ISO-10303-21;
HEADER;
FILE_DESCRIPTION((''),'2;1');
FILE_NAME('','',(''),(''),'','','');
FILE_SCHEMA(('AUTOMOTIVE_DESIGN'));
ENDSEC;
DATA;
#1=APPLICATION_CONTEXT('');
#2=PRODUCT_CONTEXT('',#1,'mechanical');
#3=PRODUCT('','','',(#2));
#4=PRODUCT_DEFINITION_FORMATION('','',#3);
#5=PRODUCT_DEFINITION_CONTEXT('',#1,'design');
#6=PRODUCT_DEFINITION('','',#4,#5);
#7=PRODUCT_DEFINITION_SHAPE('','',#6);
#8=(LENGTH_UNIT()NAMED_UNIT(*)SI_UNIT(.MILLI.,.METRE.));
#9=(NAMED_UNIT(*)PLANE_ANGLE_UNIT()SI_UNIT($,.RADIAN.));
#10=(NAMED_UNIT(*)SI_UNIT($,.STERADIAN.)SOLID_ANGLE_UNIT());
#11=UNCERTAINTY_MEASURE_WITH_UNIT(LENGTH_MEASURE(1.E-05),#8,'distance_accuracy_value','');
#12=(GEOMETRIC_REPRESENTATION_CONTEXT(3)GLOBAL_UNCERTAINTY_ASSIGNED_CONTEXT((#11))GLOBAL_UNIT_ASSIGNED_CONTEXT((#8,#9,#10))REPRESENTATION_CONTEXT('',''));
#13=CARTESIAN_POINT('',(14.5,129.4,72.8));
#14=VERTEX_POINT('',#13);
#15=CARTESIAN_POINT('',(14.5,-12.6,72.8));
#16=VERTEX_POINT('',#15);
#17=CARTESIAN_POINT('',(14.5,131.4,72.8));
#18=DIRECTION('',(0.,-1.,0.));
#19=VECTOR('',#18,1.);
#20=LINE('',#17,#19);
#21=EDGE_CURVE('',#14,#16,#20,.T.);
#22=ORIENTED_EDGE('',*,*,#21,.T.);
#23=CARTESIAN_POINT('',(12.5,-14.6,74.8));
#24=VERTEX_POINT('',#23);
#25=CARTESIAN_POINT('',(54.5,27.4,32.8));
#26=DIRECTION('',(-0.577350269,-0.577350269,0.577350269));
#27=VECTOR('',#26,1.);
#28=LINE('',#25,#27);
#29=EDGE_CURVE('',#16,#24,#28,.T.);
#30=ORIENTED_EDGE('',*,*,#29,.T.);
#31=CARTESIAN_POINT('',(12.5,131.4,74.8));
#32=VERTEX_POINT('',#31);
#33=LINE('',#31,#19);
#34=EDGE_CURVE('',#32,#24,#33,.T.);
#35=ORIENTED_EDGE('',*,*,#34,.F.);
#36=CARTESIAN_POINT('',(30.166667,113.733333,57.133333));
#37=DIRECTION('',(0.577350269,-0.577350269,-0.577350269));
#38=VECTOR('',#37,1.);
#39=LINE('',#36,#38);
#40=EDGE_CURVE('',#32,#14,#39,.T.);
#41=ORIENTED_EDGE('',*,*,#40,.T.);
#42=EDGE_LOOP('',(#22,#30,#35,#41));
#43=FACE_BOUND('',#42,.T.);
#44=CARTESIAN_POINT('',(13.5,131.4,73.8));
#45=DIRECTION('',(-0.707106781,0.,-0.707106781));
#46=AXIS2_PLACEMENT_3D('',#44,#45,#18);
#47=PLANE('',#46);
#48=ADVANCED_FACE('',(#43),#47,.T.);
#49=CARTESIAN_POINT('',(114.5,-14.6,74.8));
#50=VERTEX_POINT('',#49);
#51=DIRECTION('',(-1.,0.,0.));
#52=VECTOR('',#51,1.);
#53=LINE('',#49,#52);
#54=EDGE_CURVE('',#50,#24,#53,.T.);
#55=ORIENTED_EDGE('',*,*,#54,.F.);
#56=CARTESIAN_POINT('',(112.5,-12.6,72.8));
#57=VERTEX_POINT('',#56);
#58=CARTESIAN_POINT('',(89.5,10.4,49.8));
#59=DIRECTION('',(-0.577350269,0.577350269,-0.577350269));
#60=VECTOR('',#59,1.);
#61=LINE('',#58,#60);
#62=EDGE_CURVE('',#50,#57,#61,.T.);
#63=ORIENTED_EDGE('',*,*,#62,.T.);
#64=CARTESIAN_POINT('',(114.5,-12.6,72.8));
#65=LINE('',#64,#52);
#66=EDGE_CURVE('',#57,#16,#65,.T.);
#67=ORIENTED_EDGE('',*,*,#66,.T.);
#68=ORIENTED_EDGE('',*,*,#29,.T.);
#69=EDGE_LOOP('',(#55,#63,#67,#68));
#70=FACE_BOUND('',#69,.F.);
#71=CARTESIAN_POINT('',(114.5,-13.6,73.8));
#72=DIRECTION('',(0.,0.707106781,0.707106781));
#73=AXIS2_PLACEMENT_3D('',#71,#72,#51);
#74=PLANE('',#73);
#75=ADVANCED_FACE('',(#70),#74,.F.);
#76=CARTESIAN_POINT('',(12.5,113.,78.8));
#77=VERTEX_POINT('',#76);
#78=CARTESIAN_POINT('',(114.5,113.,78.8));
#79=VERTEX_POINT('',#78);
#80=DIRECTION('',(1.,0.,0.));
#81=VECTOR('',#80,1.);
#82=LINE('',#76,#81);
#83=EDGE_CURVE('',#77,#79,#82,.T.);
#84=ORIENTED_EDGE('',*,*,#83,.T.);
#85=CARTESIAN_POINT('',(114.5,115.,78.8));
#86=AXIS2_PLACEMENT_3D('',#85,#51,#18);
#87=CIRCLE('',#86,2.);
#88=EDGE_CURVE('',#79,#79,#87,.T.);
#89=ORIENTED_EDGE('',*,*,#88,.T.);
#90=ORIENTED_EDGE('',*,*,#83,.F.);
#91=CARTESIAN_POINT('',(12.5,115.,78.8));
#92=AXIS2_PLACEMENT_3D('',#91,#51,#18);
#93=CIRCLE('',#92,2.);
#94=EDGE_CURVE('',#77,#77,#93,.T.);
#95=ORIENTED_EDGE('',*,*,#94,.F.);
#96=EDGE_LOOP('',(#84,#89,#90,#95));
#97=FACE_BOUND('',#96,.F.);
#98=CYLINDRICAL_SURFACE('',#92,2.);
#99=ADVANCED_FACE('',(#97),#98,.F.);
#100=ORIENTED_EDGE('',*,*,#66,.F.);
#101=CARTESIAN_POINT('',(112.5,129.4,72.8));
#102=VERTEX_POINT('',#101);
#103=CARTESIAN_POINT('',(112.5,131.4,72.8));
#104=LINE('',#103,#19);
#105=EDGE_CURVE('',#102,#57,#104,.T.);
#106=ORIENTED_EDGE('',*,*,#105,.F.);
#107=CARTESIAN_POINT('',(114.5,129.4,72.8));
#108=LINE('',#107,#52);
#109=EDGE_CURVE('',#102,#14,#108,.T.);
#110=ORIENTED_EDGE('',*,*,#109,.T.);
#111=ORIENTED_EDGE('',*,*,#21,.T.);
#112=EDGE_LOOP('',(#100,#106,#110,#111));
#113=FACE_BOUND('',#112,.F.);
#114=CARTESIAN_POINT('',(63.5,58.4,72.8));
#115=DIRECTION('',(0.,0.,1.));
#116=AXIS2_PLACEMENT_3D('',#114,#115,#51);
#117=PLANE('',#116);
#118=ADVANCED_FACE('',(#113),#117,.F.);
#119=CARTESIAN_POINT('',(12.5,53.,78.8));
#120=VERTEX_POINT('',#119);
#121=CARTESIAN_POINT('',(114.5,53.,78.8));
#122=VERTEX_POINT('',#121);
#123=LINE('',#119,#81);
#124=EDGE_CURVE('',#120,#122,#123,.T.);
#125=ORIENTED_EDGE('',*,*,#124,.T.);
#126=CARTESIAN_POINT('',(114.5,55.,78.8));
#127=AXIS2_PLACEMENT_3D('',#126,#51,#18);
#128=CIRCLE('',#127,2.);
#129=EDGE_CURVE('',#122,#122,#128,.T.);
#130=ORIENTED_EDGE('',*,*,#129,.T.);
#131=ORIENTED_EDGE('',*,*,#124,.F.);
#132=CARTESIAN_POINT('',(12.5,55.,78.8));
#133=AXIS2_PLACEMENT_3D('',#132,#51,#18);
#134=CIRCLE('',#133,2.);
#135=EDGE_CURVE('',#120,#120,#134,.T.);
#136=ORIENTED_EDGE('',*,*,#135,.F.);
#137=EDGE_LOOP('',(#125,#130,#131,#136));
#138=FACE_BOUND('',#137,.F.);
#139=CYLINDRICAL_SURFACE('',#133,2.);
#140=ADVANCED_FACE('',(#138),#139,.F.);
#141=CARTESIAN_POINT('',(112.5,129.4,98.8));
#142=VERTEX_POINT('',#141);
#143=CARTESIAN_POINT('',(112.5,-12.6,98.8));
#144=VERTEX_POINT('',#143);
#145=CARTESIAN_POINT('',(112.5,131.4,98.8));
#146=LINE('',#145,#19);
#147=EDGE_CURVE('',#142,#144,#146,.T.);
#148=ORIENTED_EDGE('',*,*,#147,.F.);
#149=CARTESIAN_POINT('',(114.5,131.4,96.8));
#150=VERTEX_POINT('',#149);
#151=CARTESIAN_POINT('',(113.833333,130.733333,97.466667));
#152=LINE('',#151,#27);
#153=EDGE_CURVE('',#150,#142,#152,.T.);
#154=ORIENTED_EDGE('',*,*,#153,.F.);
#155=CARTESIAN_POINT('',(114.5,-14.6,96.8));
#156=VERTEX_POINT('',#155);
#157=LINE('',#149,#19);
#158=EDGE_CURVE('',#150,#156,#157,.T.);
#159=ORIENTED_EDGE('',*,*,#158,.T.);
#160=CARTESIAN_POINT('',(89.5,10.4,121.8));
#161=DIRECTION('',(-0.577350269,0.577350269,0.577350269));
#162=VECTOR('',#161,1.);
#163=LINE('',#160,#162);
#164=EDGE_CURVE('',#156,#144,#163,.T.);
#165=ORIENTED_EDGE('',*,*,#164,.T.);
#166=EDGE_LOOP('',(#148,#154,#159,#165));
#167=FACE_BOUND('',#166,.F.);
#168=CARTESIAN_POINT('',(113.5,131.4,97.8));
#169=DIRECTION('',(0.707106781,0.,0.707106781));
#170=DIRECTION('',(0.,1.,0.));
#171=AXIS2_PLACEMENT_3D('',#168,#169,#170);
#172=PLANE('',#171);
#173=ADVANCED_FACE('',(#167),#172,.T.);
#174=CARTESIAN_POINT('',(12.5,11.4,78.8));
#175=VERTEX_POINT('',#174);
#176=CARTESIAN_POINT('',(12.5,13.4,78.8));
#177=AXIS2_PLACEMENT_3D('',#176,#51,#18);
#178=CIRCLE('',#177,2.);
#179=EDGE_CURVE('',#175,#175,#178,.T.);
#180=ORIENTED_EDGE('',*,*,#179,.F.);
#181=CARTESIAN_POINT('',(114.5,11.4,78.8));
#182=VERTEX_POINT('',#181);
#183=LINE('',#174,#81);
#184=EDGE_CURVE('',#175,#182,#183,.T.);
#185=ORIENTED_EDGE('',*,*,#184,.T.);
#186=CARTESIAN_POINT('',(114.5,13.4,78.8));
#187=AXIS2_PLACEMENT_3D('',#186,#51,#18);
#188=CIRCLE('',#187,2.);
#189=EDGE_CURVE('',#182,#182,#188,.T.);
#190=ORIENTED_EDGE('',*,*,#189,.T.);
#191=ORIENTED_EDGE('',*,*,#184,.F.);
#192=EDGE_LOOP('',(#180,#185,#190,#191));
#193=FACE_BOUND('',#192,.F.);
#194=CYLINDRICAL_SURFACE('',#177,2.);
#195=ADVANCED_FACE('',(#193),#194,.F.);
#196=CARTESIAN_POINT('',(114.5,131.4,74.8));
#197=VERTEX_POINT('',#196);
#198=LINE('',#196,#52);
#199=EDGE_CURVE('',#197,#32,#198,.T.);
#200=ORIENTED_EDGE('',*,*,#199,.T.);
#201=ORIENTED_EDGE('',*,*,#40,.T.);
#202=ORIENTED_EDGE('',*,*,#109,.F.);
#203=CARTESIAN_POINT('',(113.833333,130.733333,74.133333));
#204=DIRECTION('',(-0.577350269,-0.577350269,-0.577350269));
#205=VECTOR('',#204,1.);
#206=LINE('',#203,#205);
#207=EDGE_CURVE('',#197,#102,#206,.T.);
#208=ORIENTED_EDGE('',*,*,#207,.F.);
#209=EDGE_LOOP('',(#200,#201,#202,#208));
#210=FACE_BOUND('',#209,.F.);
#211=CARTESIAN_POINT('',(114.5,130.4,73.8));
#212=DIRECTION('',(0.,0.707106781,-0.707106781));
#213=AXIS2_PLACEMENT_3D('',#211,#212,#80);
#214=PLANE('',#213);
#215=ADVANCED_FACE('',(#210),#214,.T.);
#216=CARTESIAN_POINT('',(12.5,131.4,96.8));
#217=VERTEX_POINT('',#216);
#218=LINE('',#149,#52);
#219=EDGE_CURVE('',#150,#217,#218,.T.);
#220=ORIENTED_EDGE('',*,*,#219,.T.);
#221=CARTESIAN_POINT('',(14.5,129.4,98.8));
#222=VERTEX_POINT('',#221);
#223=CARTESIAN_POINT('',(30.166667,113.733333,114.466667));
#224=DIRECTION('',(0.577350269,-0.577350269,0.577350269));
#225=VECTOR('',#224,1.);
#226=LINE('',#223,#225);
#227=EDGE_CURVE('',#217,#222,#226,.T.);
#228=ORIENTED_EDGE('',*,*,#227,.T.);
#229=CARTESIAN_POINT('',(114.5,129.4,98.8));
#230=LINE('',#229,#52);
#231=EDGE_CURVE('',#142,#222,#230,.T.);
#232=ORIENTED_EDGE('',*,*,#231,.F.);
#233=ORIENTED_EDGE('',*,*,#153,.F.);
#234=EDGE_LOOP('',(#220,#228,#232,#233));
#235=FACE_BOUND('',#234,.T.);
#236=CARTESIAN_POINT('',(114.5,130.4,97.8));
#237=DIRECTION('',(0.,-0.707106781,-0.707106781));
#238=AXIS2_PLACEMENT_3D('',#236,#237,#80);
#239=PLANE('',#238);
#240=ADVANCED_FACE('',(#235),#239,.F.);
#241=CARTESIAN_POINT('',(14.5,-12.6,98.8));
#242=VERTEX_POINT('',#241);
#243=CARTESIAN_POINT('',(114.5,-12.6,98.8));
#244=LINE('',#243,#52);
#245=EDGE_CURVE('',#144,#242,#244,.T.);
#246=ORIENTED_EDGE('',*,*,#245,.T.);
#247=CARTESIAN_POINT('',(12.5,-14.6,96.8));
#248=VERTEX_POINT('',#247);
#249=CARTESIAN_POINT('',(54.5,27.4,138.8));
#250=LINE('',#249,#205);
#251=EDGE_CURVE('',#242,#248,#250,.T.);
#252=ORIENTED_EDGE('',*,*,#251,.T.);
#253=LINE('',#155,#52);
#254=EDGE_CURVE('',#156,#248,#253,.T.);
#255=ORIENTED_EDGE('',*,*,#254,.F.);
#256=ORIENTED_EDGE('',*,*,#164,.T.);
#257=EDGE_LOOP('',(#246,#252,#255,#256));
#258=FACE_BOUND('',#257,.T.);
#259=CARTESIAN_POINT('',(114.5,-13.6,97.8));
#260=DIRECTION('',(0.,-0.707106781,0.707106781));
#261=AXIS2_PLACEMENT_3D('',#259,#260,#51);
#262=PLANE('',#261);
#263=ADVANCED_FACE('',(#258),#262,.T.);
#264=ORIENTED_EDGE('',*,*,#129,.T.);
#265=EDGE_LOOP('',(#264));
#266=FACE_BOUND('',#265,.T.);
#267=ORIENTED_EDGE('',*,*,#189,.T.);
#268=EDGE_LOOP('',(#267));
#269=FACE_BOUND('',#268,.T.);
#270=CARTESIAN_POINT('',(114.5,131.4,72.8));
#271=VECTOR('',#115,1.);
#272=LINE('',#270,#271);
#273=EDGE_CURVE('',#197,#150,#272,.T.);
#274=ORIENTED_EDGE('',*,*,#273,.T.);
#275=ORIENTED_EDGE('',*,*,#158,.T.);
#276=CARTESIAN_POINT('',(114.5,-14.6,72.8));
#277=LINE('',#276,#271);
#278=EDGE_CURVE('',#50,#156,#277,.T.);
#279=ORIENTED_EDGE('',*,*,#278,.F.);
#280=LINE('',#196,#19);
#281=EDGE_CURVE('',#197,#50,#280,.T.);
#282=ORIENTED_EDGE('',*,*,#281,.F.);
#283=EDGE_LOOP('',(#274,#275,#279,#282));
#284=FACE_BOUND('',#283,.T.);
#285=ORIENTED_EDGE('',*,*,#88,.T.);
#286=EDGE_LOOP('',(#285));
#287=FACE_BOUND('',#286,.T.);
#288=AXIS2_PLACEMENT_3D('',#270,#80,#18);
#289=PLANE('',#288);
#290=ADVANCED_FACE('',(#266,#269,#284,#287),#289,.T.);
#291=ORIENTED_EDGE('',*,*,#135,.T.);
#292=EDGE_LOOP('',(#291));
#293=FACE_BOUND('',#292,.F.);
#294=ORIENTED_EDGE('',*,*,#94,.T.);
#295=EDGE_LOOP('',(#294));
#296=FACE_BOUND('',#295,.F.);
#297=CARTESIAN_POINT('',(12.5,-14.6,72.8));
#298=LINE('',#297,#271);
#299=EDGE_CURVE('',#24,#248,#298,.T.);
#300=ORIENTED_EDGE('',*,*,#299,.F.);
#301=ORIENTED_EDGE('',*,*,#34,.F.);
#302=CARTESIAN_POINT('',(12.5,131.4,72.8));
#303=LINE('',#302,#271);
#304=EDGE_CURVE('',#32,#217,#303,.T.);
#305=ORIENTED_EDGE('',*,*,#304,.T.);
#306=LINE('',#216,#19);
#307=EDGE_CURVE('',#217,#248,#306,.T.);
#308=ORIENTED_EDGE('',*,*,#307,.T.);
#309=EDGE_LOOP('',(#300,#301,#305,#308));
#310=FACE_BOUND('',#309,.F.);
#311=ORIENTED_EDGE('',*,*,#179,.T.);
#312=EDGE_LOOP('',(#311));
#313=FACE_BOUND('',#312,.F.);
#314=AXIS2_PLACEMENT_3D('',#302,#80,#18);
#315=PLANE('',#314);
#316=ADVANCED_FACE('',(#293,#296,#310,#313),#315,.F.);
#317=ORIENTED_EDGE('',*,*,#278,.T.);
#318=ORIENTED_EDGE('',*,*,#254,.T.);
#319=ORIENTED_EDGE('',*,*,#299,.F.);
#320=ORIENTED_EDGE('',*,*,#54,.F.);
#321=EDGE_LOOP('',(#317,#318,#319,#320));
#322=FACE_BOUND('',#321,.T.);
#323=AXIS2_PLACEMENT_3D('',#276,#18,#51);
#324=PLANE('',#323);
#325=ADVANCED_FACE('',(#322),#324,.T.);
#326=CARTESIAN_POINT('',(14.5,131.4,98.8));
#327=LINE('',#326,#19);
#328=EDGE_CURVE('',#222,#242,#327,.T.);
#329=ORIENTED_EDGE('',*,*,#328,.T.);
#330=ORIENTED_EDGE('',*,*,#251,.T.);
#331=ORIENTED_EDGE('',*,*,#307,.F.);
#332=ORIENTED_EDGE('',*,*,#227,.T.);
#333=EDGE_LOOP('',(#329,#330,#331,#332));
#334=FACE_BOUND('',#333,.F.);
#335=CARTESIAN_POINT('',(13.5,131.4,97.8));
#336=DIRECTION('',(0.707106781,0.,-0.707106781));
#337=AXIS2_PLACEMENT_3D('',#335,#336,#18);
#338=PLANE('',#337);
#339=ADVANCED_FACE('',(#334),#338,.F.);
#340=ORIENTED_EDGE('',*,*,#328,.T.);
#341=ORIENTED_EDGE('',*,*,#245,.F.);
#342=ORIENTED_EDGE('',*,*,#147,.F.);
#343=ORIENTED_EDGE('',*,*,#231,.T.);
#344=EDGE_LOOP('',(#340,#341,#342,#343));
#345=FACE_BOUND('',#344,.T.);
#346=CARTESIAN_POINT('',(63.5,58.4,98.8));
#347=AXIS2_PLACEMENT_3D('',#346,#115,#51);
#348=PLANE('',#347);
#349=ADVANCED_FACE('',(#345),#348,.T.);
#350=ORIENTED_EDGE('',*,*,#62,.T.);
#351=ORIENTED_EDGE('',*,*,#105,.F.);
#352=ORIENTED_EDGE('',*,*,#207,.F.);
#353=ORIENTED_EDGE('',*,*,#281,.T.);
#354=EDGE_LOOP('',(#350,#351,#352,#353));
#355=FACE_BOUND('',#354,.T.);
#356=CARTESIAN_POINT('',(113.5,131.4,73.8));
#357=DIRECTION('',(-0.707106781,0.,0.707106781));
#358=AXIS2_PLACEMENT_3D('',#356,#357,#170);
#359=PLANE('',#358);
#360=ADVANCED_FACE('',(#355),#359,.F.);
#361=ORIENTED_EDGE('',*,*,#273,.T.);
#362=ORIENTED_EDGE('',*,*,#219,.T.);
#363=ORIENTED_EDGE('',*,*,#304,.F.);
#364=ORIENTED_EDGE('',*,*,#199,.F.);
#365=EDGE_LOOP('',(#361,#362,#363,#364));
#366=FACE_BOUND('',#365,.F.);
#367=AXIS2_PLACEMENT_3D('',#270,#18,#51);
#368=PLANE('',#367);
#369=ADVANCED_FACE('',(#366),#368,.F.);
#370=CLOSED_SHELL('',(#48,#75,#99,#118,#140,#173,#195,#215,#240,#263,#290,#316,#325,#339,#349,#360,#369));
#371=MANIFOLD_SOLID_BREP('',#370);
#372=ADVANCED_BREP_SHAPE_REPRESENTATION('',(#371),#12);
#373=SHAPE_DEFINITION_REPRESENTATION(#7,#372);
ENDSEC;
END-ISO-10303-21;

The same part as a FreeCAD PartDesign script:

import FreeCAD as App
import Part
import Sketcher

V = App.Vector


def edges_at(feature, points):
    """Names of the edges that pass closest to the given points."""
    edges = feature.Shape.Edges
    near = lambda p: min(range(len(edges)), key=lambda i: edges[i].distToShape(Part.Vertex(*p))[0])
    return sorted({f"Edge{near(p) + 1}" for p in points})


def add_polygon(sketch, points):
    """Adds a closed chain of lines whose ends are joined by coincident constraints."""
    first, n = sketch.GeometryCount, len(points)
    for a, b in zip(points, points[1:] + points[:1]):
        sketch.addGeometry(Part.LineSegment(App.Vector(*a, 0), App.Vector(*b, 0)), False)
    for i in range(n):
        sketch.addConstraint(Sketcher.Constraint("Coincident", first + i, 2, first + (i + 1) % n, 1))

doc = App.newDocument("Part")
body = doc.addObject("PartDesign::Body", "Body")

sketch1 = body.newObject("Sketcher::SketchObject", "Sketch")
sketch1.AttachmentSupport = (doc.getObject("XY_Plane"), [""])
sketch1.MapMode = "FlatFace"
add_polygon(sketch1, [(-51, 73), (-51, -73), (51, -73), (51, 73)])
sketch1.addConstraint(Sketcher.Constraint("Vertical", 0))
sketch1.addConstraint(Sketcher.Constraint("Horizontal", 1))
sketch1.addConstraint(Sketcher.Constraint("Vertical", 2))
sketch1.addConstraint(Sketcher.Constraint("Horizontal", 3))
sketch1.addConstraint(Sketcher.Constraint("Symmetric", 0, 2, 2, 2, -1, 1))
sketch1.addConstraint(Sketcher.Constraint("DistanceX", 1, 1, 1, 2, 102.0))
sketch1.addConstraint(Sketcher.Constraint("DistanceY", 0, 2, 0, 1, 146.0))
pad1 = body.newObject("PartDesign::Pad", "Pad")
pad1.Profile = sketch1
pad1.Length = 26

sketch2 = body.newObject("Sketcher::SketchObject", "Sketch001")
sketch2.AttachmentSupport = (doc.getObject("YZ_Plane"), [""])
sketch2.MapMode = "FlatFace"
sketch2.AttachmentOffset = App.Placement(V(0, 0, 51), App.Rotation())
sketch2.addGeometry(Part.Circle(V(45, 6, 0), V(0, 0, 1), 2), False)
sketch2.addGeometry(Part.Circle(V(3.4, 6, 0), V(0, 0, 1), 2), False)
sketch2.addGeometry(Part.Circle(V(-56.6, 6, 0), V(0, 0, 1), 2), False)
sketch2.addConstraint(Sketcher.Constraint("Equal", 0, 1))
sketch2.addConstraint(Sketcher.Constraint("Equal", 1, 2))
sketch2.addConstraint(Sketcher.Constraint("Horizontal", 0, 3, 1, 3))
sketch2.addConstraint(Sketcher.Constraint("Horizontal", 1, 3, 2, 3))
sketch2.addConstraint(Sketcher.Constraint("Diameter", 0, 4.0))
sketch2.addConstraint(Sketcher.Constraint("DistanceX", -1, 1, 0, 3, 45.0))
sketch2.addConstraint(Sketcher.Constraint("DistanceY", -1, 1, 0, 3, 6.0))
sketch2.addConstraint(Sketcher.Constraint("DistanceX", 2, 3, 1, 3, 60.0))
sketch2.addConstraint(Sketcher.Constraint("DistanceX", -1, 1, 1, 3, 3.4))
pocket1 = body.newObject("PartDesign::Pocket", "Pocket")
pocket1.Profile = sketch2
pocket1.Type = "ThroughAll"
doc.recompute()

chamfer = body.newObject("PartDesign::Chamfer", "Chamfer")
chamfer.Base = (pocket1, edges_at(pocket1, [
    (-51, 0, 0),
    (0, -73, 0),
    (51, 0, 0),
    (0, 73, 0),
    (-51, 0, 26),
    (0, -73, 26),
    (51, 0, 26),
    (0, 73, 26),
]))
chamfer.Size = 2
body2 = doc.addObject("PartDesign::Body", "Body001")
doc.recompute()

body.Placement = App.Placement(V(63.5, 58.4, 72.8), App.Rotation(V(0, 0, 1), 180))
boolean = body2.newObject("PartDesign::Boolean", "Boolean")
boolean.Type = "Fuse"
boolean.addObjects([body])

doc.recompute()
